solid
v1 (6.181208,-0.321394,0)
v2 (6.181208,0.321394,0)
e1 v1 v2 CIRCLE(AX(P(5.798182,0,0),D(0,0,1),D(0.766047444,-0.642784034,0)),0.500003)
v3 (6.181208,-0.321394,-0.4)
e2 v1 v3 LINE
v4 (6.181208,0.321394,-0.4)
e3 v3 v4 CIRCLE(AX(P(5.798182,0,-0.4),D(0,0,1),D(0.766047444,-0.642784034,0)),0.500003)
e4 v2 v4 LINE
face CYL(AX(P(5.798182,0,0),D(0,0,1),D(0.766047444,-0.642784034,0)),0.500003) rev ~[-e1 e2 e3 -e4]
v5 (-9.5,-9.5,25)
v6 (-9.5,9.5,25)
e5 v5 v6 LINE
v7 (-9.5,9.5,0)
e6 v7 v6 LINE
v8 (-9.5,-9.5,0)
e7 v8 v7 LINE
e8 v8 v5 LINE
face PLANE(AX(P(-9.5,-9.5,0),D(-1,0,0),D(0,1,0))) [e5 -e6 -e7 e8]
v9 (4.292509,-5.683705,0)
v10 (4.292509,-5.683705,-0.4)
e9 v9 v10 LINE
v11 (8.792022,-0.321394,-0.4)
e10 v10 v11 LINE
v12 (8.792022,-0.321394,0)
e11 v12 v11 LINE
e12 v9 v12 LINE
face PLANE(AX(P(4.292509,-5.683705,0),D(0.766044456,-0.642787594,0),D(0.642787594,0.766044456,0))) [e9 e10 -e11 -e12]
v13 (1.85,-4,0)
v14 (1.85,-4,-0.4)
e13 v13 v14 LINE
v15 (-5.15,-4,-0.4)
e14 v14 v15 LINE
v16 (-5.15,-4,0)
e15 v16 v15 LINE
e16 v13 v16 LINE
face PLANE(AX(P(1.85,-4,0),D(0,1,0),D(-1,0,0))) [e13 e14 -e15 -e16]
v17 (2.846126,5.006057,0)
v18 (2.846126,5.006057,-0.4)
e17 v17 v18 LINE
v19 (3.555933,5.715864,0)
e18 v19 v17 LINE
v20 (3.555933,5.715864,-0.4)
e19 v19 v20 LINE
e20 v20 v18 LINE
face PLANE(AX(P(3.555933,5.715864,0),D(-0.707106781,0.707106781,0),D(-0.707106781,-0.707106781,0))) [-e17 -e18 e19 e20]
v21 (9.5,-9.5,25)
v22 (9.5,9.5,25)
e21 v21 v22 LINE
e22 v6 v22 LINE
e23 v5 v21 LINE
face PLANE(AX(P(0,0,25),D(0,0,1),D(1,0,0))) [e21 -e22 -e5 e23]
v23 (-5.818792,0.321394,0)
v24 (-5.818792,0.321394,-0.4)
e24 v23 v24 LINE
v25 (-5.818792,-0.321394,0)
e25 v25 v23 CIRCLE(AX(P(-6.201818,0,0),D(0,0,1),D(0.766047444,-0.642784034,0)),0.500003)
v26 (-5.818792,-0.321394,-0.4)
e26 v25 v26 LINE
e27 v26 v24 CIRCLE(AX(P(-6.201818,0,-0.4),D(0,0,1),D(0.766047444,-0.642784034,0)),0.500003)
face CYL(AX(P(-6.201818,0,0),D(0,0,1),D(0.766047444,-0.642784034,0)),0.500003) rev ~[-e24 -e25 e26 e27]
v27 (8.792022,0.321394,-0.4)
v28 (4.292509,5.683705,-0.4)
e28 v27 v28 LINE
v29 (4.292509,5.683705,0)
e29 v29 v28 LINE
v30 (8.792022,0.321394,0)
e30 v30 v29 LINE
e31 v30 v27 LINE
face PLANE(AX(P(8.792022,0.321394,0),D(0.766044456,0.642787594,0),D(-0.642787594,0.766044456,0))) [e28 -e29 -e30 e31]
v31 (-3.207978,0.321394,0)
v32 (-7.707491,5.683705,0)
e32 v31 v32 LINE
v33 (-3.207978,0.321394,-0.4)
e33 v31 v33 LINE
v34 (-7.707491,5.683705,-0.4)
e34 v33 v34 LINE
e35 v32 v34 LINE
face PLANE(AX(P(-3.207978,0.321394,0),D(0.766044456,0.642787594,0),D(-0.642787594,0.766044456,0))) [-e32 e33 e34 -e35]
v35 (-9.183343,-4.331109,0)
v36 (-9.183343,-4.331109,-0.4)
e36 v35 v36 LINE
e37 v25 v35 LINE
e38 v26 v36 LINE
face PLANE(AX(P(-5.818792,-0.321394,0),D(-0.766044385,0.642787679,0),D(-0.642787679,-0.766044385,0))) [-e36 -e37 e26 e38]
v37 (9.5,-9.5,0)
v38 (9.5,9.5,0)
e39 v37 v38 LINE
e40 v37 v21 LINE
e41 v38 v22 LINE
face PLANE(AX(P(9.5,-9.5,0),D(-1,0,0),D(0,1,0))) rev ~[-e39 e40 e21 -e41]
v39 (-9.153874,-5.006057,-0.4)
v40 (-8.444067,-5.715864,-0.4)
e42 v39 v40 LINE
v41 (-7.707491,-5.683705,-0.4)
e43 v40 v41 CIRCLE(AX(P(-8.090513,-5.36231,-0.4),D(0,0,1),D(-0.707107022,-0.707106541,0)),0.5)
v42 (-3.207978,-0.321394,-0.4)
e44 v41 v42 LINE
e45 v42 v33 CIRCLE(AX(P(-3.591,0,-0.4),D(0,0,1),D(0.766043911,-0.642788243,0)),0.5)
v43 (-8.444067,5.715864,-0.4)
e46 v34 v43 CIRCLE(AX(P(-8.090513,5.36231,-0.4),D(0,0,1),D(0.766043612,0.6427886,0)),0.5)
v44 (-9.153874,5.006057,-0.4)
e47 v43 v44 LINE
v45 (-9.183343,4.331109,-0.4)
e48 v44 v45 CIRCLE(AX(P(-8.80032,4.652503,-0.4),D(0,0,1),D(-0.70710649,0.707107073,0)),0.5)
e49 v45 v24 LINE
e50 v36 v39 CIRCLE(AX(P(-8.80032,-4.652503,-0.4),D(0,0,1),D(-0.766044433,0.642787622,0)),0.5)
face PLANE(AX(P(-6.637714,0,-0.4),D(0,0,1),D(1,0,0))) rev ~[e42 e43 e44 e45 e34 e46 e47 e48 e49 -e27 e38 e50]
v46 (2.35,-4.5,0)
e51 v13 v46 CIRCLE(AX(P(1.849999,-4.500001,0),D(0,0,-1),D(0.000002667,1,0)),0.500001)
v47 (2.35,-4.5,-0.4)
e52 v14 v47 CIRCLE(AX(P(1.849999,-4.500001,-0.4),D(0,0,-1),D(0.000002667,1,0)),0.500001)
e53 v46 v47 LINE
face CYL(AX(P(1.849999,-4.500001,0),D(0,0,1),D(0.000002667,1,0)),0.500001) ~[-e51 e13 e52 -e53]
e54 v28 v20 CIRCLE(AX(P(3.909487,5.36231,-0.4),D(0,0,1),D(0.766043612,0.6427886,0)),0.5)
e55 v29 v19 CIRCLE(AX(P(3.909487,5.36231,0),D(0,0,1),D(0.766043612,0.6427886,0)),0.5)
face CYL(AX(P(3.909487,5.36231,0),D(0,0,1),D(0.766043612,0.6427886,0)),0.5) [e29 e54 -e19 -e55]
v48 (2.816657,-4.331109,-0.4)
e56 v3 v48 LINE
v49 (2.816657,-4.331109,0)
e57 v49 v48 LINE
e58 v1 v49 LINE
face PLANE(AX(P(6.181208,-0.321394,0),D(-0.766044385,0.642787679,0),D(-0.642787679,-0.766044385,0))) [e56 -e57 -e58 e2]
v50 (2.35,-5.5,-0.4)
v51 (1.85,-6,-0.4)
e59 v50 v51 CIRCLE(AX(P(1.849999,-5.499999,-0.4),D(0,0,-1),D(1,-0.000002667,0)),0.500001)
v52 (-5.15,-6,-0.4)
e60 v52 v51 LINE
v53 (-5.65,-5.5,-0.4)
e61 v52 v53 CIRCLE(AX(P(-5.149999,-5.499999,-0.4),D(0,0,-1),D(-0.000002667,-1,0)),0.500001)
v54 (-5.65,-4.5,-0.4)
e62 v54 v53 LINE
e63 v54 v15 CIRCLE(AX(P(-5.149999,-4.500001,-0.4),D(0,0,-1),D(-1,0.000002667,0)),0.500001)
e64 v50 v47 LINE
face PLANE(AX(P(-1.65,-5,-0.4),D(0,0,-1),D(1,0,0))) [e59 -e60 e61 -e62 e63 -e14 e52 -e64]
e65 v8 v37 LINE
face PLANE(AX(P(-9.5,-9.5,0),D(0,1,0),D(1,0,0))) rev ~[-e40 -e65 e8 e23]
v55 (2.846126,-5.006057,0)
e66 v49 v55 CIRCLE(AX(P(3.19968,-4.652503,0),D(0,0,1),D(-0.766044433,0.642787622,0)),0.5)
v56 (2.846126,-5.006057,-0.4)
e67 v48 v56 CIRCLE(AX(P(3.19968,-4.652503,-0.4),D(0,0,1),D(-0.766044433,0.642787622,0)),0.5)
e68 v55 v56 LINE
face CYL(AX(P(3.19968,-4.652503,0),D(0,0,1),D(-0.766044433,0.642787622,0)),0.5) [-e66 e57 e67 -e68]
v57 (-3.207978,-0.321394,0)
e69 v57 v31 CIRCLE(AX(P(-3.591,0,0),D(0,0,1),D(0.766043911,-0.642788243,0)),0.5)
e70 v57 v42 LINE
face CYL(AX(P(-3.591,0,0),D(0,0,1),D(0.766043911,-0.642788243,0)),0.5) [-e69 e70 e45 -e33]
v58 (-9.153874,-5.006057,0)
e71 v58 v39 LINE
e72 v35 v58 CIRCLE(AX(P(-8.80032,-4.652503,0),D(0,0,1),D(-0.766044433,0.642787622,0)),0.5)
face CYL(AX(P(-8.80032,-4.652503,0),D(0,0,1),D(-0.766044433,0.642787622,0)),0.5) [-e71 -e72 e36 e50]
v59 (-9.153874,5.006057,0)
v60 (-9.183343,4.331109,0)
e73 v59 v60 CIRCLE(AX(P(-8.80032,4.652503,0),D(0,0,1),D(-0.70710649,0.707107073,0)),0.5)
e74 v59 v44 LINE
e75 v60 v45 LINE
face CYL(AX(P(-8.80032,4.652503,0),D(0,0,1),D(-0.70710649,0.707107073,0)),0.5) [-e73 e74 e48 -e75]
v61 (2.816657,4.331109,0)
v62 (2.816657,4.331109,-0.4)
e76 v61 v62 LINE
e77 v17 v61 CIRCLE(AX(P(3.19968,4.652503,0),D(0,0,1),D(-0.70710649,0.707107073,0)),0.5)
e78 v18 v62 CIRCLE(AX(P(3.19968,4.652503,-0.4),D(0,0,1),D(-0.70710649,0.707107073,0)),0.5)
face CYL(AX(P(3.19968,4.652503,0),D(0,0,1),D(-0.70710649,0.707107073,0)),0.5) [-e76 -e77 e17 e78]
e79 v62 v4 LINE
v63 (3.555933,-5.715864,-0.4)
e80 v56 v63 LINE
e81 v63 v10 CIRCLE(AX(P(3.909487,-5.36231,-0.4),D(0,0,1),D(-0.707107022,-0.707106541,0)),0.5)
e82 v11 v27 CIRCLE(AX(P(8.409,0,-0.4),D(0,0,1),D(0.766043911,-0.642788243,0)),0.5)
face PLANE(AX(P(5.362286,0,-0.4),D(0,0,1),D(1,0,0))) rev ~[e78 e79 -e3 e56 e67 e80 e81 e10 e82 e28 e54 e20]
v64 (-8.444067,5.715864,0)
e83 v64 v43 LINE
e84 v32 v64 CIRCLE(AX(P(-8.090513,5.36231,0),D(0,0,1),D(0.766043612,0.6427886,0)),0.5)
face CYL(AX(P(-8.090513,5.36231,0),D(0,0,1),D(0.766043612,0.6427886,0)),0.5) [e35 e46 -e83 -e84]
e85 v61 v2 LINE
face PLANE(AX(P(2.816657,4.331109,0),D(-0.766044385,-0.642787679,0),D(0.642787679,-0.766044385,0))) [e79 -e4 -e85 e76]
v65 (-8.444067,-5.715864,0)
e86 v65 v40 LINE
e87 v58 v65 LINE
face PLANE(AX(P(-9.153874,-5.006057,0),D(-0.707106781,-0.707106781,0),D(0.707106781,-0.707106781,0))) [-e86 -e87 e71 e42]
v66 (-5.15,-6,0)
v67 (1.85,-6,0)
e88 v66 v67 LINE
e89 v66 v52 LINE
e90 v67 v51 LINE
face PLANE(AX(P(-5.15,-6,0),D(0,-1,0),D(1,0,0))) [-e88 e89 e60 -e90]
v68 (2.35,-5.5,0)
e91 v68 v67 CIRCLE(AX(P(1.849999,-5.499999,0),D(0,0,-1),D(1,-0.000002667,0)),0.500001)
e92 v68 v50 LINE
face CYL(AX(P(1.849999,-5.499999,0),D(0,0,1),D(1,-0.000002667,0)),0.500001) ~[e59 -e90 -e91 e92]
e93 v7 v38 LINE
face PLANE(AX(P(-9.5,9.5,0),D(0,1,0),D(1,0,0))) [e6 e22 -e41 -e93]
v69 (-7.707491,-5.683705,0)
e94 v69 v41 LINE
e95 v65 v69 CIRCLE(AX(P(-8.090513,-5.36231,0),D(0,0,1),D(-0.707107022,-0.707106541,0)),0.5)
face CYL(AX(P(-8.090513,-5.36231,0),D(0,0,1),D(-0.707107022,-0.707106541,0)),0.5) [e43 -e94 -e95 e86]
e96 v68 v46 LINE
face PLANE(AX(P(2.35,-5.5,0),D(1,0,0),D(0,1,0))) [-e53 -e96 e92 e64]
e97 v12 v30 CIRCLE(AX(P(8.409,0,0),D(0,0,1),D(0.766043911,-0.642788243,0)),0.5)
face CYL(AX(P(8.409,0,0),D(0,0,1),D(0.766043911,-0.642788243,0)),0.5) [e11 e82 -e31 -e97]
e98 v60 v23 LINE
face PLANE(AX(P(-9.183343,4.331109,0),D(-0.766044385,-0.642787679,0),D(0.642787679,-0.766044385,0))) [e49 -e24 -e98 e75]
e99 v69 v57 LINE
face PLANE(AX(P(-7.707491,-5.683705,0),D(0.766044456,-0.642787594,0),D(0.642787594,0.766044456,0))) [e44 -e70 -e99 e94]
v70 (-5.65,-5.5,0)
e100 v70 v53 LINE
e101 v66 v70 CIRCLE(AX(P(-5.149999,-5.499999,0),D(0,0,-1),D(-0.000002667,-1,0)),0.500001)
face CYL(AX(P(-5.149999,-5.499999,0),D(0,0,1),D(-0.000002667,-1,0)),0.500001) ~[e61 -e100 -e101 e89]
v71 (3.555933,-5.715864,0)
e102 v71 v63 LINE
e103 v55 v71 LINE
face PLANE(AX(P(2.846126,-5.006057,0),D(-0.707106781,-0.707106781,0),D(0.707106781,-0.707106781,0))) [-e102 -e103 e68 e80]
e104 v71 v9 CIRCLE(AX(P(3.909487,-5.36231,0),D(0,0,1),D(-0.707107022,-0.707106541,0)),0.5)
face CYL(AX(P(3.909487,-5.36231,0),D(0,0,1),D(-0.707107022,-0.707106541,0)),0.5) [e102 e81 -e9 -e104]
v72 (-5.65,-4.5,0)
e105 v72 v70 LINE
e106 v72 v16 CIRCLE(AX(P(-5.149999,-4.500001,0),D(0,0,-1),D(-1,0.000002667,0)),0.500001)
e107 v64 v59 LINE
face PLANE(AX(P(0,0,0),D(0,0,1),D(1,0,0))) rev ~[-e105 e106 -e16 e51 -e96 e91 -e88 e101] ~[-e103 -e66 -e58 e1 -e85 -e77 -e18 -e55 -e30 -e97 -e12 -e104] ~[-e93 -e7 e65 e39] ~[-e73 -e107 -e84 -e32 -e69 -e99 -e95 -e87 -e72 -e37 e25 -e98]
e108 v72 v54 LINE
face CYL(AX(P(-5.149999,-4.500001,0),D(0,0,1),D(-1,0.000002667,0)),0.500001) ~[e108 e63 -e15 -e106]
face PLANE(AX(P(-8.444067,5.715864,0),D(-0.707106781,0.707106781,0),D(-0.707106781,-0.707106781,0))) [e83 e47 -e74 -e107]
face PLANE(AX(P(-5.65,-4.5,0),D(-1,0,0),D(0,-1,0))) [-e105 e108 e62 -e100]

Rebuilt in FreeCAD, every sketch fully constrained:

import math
import FreeCAD as App
import Part
import Sketcher
from FreeCAD import Vector
Q = App.Units.Quantity


def add_polygon(sketch, points):
    """Adds a closed chain of lines whose ends are joined by coincident constraints."""
    first, n = sketch.GeometryCount, len(points)
    for a, b in zip(points, points[1:] + points[:1]):
        sketch.addGeometry(Part.LineSegment(App.Vector(*a, 0), App.Vector(*b, 0)), False)
    for i in range(n):
        sketch.addConstraint(Sketcher.Constraint("Coincident", first + i, 2, first + (i + 1) % n, 1))

doc = App.newDocument("Part")
params = doc.addObject("Spreadsheet::Sheet", "Params")
for row, (alias, value) in enumerate([
    ("sketch1_width", "19 mm"),
    ("pad1_length", "25 mm"),
    ("sketch2_radius", "0.5 mm"),
    ("sketch2_length", "7 mm"),
    ("pad2_length", "0.4 mm"),
    ("linearpattern_pitch", "12 mm"),
    ("sketch3_radius", "0.500001 mm"),
    ("sketch3_width", "7 mm"),
    ("sketch3_height", "1 mm"),
    ("pad3_length", "0.4 mm"),
], start=1):
    params.set(f"A{row}", alias)
    params.set(f"B{row}", "=" + value)
    params.setAlias(f"B{row}", alias)

body = doc.addObject("PartDesign::Body", "Body")

# Sketch on XY plane
sketch1 = doc.addObject("Sketcher::SketchObject", "Sketch")
body.addObject(sketch1)
sketch1.AttachmentSupport = (doc.XY_Plane, [""])
sketch1.MapMode = "FlatFace"
add_polygon(sketch1, [(-10, 10), (-10, -10), (10, -10), (10, 10)])  # lines 0-3
sketch1.addConstraint([
    Sketcher.Constraint("Vertical", 0),
    Sketcher.Constraint("Horizontal", 1),
    Sketcher.Constraint("Vertical", 2),
    Sketcher.Constraint("Horizontal", 3),
    Sketcher.Constraint("Symmetric", 0, 2, 2, 2, -1, 1),
    Sketcher.Constraint("Equal", 3, 0),
    Sketcher.Constraint("DistanceX", 1, 1, 1, 2, Q("19 mm")),
])
sketch1.setExpression("Constraints[10]", "Params.sketch1_width")
pad1 = doc.addObject("PartDesign::Pad", "Pad")
body.addObject(pad1)
pad1.Profile = sketch1
pad1.setExpression("Length", "Params.pad1_length")

# Sketch on XY plane
sketch2 = doc.addObject("Sketcher::SketchObject", "Sketch001")
body.addObject(sketch2)
sketch2.AttachmentSupport = (doc.XY_Plane, [""])
sketch2.MapMode = "FlatFace"
sketch2.addGeometry([
    Part.LineSegment(Vector(-9.18, 4.33, 0), Vector(-5.82, 0.32, 0)),  # 0
    Part.ArcOfCircle(Part.Circle(Vector(-6.2, 0, 0), Vector(0, 0, 1), 0.5), math.radians(-40), math.radians(40)),  # 1
    Part.LineSegment(Vector(-5.82, -0.32, 0), Vector(-9.18, -4.33, 0)),  # 2
    Part.ArcOfCircle(Part.Circle(Vector(-8.8, -4.65, 0), Vector(0, 0, 1), 0.5), math.radians(140), math.radians(225)),  # 3
    Part.LineSegment(Vector(-9.15, -5.01, 0), Vector(-8.44, -5.72, 0)),  # 4
    Part.ArcOfCircle(Part.Circle(Vector(-8.09, -5.36, 0), Vector(0, 0, 1), 0.5), math.radians(-135), math.radians(-40)),  # 5
    Part.LineSegment(Vector(-7.71, -5.68, 0), Vector(-3.21, -0.32, 0)),  # 6
    Part.ArcOfCircle(Part.Circle(Vector(-3.59, 0, 0), Vector(0, 0, 1), 0.5), math.radians(-40), math.radians(40)),  # 7
    Part.LineSegment(Vector(-3.21, 0.32, 0), Vector(-7.71, 5.68, 0)),  # 8
    Part.ArcOfCircle(Part.Circle(Vector(-8.09, 5.36, 0), Vector(0, 0, 1), 0.5), math.radians(40), math.radians(135)),  # 9
    Part.LineSegment(Vector(-8.44, 5.72, 0), Vector(-9.15, 5.01, 0)),  # 10
    Part.ArcOfCircle(Part.Circle(Vector(-8.8, 4.65, 0), Vector(0, 0, 1), 0.5), math.radians(135), math.radians(220)),  # 11
], False)
sketch2.addConstraint([
    Sketcher.Constraint("Coincident", 0, 2, 1, 2),
    Sketcher.Constraint("Coincident", 1, 1, 2, 1),
    Sketcher.Constraint("Tangent", 2, 2, 3, 1),
    Sketcher.Constraint("Tangent", 3, 2, 4, 1),
    Sketcher.Constraint("Tangent", 4, 2, 5, 1),
    Sketcher.Constraint("Tangent", 5, 2, 6, 1),
    Sketcher.Constraint("Tangent", 6, 2, 7, 1),
    Sketcher.Constraint("Tangent", 7, 2, 8, 1),
    Sketcher.Constraint("Tangent", 8, 2, 9, 1),
    Sketcher.Constraint("Tangent", 9, 2, 10, 1),
    Sketcher.Constraint("Tangent", 10, 2, 11, 1),
    Sketcher.Constraint("Tangent", 11, 2, 0, 1),
    Sketcher.Constraint("Equal", 3, 5),
    Sketcher.Constraint("Equal", 5, 7),
    Sketcher.Constraint("Equal", 7, 9),
    Sketcher.Constraint("Equal", 9, 11),
    Sketcher.Constraint("Symmetric", 5, 3, 9, 3, -1),
    Sketcher.Constraint("Symmetric", 3, 3, 11, 3, -1),
    Sketcher.Constraint("Symmetric", 0, 2, 1, 1, -1),
    Sketcher.Constraint("PointOnObject", 7, 3, -1),
    Sketcher.Constraint("Parallel", 2, 6),
    Sketcher.Constraint("Perpendicular", 4, 10),
    Sketcher.Constraint("Horizontal", 1, 1, 6, 2),
    Sketcher.Constraint("Radius", 3, Q("0.5 mm")),
    Sketcher.Constraint("Angle", 0, Q("-49.999995 deg")),
    Sketcher.Constraint("Distance", 6, Q("7 mm")),
    Sketcher.Constraint("DistanceX", 7, 3, -1, 1, Q("3.591 mm")),
    Sketcher.Constraint("Radius", 1, Q("0.500003 mm")),
    Sketcher.Constraint("DistanceY", 5, 3, 2, 2, Q("1.031201 mm")),
])
sketch2.setExpression("Constraints[23]", "Params.sketch2_radius")
sketch2.setExpression("Constraints[25]", "Params.sketch2_length")
pad2 = doc.addObject("PartDesign::Pad", "Pad001")
body.addObject(pad2)
pad2.Profile = sketch2
pad2.setExpression("Length", "Params.pad2_length")
pad2.Reversed = True
doc.recompute()

linearpattern = doc.addObject("PartDesign::LinearPattern", "LinearPattern")
body.addObject(linearpattern)
linearpattern.Originals = [pad2]
linearpattern.Direction = (doc.X_Axis, [""])
linearpattern.Mode = "offset"
linearpattern.setExpression("Offset", "Params.linearpattern_pitch")
linearpattern.Occurrences = 2
body.Tip = linearpattern

# Sketch on XY plane
sketch3 = doc.addObject("Sketcher::SketchObject", "Sketch002")
body.addObject(sketch3)
sketch3.AttachmentSupport = (doc.XY_Plane, [""])
sketch3.MapMode = "FlatFace"
sketch3.addGeometry([
    Part.ArcOfCircle(Part.Circle(Vector(-5.1, -5.5, 0), Vector(0, 0, 1), 0.5), math.radians(-180), math.radians(-90)),  # 0
    Part.LineSegment(Vector(-5.7, -5.5, 0), Vector(-5.7, -4.5, 0)),  # 1
    Part.ArcOfCircle(Part.Circle(Vector(-5.1, -4.5, 0), Vector(0, 0, 1), 0.5), math.radians(90), math.radians(180)),  # 2
    Part.LineSegment(Vector(-5.2, -4, 0), Vector(1.9, -4, 0)),  # 3
    Part.ArcOfCircle(Part.Circle(Vector(1.8, -4.5, 0), Vector(0, 0, 1), 0.5), math.radians(0), math.radians(90)),  # 4
    Part.LineSegment(Vector(2.4, -4.5, 0), Vector(2.4, -5.5, 0)),  # 5
    Part.ArcOfCircle(Part.Circle(Vector(1.8, -5.5, 0), Vector(0, 0, 1), 0.5), math.radians(-90), math.radians(0)),  # 6
    Part.LineSegment(Vector(1.9, -6, 0), Vector(-5.2, -6, 0)),  # 7
], False)
sketch3.addConstraint([
    Sketcher.Constraint("Coincident", 0, 1, 1, 1),
    Sketcher.Constraint("Coincident", 1, 2, 2, 2),
    Sketcher.Constraint("Coincident", 2, 1, 3, 1),
    Sketcher.Constraint("Coincident", 3, 2, 4, 2),
    Sketcher.Constraint("Coincident", 4, 1, 5, 1),
    Sketcher.Constraint("Coincident", 5, 2, 6, 2),
    Sketcher.Constraint("Coincident", 6, 1, 7, 1),
    Sketcher.Constraint("Coincident", 7, 2, 0, 2),
    Sketcher.Constraint("Vertical", 1),
    Sketcher.Constraint("Horizontal", 3),
    Sketcher.Constraint("Vertical", 5),
    Sketcher.Constraint("Horizontal", 7),
    Sketcher.Constraint("Equal", 0, 2),
    Sketcher.Constraint("Equal", 2, 4),
    Sketcher.Constraint("Equal", 4, 6),
    Sketcher.Constraint("Horizontal", 6, 3, 0, 1),
    Sketcher.Constraint("Horizontal", 4, 3, 1, 2),
    Sketcher.Constraint("Horizontal", 1, 2, 4, 1),
    Sketcher.Constraint("Horizontal", 0, 1, 5, 2),
    Sketcher.Constraint("Vertical", 0, 3, 2, 1),
    Sketcher.Constraint("Vertical", 6, 3, 3, 2),
    Sketcher.Constraint("Vertical", 3, 2, 6, 1),
    Sketcher.Constraint("Vertical", 2, 1, 7, 2),
    Sketcher.Constraint("Radius", 0, Q("0.500001 mm")),
    Sketcher.Constraint("DistanceX", 3, 1, 3, 2, Q("7 mm")),
    Sketcher.Constraint("DistanceY", 1, 1, 1, 2, Q("1 mm")),
    Sketcher.Constraint("DistanceY", 2, 1, -1, 1, Q("4 mm")),
    Sketcher.Constraint("DistanceX", 0, 3, -1, 1, Q("5.149999 mm")),
])
sketch3.setExpression("Constraints[23]", "Params.sketch3_radius")
sketch3.setExpression("Constraints[24]", "Params.sketch3_width")
sketch3.setExpression("Constraints[25]", "Params.sketch3_height")
pad3 = doc.addObject("PartDesign::Pad", "Pad002")
body.addObject(pad3)
pad3.Profile = sketch3
pad3.setExpression("Length", "Params.pad3_length")
pad3.Reversed = True

doc.recompute()
